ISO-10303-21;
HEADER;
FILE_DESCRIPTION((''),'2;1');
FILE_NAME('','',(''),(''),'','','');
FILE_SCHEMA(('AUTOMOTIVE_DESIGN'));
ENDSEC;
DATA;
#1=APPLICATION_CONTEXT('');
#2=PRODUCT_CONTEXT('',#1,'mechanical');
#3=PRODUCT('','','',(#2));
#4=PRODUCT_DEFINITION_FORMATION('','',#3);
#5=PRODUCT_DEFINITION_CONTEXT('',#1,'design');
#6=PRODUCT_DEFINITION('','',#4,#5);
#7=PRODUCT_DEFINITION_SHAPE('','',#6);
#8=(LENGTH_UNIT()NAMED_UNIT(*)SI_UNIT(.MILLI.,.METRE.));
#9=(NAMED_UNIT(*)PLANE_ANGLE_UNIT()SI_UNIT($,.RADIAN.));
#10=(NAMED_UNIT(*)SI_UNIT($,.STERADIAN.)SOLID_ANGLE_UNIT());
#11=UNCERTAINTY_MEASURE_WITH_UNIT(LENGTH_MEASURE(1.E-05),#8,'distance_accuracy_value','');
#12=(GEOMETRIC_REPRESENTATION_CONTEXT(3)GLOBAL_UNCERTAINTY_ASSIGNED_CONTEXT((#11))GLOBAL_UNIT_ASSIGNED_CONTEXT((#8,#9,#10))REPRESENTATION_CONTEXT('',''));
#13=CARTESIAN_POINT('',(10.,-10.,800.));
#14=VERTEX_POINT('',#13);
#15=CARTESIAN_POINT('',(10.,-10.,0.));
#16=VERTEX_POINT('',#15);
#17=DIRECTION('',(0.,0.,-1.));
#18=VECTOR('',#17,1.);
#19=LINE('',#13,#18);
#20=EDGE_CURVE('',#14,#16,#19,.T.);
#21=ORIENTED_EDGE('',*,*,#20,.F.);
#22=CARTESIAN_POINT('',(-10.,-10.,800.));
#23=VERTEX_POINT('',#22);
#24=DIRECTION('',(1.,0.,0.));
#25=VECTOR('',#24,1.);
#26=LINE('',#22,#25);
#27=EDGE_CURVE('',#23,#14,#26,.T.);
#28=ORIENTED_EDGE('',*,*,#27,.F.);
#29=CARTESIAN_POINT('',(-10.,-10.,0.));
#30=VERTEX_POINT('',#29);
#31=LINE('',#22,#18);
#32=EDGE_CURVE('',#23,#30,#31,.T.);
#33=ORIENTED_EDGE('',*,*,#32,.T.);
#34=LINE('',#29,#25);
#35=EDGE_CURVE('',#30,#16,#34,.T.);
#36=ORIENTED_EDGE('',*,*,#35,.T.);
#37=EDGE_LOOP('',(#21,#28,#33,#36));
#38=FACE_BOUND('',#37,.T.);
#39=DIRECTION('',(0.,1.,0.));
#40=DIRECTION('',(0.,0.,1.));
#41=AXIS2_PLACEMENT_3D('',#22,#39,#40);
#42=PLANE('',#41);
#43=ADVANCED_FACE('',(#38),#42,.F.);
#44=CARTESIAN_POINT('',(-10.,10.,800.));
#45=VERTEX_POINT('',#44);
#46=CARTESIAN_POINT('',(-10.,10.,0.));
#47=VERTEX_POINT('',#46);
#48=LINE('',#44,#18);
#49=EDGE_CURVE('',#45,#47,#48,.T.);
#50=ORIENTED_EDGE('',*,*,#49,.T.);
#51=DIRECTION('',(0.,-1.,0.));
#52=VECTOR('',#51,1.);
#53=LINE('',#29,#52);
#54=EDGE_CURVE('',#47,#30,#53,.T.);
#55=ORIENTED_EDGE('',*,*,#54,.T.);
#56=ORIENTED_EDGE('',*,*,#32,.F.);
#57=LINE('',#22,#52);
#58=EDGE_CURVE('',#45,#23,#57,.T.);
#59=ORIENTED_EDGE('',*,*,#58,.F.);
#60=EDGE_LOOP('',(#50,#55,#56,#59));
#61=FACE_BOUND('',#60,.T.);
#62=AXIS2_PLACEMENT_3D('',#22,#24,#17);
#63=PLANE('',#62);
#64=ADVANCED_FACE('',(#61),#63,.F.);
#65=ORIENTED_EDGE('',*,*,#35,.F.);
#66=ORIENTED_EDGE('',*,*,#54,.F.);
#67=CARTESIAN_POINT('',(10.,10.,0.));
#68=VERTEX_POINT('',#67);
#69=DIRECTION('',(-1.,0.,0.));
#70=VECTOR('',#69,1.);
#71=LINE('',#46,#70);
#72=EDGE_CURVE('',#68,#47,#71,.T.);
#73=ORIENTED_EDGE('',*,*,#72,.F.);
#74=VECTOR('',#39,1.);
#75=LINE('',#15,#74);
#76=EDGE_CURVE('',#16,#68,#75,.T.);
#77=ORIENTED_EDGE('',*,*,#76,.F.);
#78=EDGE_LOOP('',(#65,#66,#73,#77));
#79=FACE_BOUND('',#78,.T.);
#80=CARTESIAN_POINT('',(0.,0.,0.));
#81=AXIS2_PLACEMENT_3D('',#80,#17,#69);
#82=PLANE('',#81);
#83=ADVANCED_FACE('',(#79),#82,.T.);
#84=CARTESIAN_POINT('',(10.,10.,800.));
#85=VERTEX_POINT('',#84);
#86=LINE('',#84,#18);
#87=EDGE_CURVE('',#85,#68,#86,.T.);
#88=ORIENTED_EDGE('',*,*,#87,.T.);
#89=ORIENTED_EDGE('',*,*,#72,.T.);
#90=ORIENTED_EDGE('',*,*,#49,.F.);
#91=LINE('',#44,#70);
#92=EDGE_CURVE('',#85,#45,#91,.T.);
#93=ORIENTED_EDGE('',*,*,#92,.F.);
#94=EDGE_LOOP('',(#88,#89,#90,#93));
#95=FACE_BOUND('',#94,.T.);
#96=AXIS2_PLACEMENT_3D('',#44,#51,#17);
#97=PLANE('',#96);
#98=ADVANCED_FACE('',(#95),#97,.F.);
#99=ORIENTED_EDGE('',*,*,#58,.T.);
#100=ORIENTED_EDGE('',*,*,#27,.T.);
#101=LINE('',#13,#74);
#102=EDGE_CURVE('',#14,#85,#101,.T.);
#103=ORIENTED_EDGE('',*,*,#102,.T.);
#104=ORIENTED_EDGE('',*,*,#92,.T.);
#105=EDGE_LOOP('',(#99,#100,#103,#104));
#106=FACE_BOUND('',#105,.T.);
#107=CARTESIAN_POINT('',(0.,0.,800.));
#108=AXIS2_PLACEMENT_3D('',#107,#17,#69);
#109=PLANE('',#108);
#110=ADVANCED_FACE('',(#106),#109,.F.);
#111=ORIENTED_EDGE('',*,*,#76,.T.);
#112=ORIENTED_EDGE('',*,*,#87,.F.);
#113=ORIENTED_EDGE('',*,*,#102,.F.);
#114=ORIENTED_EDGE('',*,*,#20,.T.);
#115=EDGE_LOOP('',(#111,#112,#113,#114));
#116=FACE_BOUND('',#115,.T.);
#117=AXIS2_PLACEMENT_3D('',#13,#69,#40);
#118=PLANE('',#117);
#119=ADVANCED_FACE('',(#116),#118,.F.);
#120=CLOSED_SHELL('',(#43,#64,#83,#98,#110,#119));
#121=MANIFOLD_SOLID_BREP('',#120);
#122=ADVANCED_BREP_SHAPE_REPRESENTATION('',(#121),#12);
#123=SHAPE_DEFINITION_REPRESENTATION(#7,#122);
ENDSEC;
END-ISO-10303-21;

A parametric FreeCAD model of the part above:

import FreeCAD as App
import Part
import Sketcher

doc = App.newDocument("Part")
body = doc.addObject("PartDesign::Body", "Body")

# Sketch on XY plane
sketch1 = doc.addObject("Sketcher::SketchObject", "Sketch")
body.addObject(sketch1)
sketch1.AttachmentSupport = (doc.XY_Plane, [""])
sketch1.MapMode = "FlatFace"
sketch1.addGeometry([
    Part.LineSegment(App.Vector(-10, 10, 0), App.Vector(-10, -10, 0)),
    Part.LineSegment(App.Vector(-10, -10, 0), App.Vector(10, -10, 0)),
    Part.LineSegment(App.Vector(10, -10, 0), App.Vector(10, 10, 0)),
    Part.LineSegment(App.Vector(10, 10, 0), App.Vector(-10, 10, 0)),
], False)
sketch1.addConstraint([
    Sketcher.Constraint("Coincident", 0, 2, 1, 1),
    Sketcher.Constraint("Coincident", 1, 2, 2, 1),
    Sketcher.Constraint("Coincident", 2, 2, 3, 1),
    Sketcher.Constraint("Coincident", 3, 2, 0, 1),
    Sketcher.Constraint("Vertical", 0),
    Sketcher.Constraint("Horizontal", 1),
    Sketcher.Constraint("Vertical", 2),
    Sketcher.Constraint("Horizontal", 3),
    Sketcher.Constraint("Symmetric", 0, 2, 2, 2, -1, 1),
    Sketcher.Constraint("Equal", 3, 0),
    Sketcher.Constraint("DistanceX", 1, 1, 1, 2, 20.0),
])
pad1 = doc.addObject("PartDesign::Pad", "Pad")
body.addObject(pad1)
pad1.Profile = sketch1
pad1.Length = 800

doc.recompute()
